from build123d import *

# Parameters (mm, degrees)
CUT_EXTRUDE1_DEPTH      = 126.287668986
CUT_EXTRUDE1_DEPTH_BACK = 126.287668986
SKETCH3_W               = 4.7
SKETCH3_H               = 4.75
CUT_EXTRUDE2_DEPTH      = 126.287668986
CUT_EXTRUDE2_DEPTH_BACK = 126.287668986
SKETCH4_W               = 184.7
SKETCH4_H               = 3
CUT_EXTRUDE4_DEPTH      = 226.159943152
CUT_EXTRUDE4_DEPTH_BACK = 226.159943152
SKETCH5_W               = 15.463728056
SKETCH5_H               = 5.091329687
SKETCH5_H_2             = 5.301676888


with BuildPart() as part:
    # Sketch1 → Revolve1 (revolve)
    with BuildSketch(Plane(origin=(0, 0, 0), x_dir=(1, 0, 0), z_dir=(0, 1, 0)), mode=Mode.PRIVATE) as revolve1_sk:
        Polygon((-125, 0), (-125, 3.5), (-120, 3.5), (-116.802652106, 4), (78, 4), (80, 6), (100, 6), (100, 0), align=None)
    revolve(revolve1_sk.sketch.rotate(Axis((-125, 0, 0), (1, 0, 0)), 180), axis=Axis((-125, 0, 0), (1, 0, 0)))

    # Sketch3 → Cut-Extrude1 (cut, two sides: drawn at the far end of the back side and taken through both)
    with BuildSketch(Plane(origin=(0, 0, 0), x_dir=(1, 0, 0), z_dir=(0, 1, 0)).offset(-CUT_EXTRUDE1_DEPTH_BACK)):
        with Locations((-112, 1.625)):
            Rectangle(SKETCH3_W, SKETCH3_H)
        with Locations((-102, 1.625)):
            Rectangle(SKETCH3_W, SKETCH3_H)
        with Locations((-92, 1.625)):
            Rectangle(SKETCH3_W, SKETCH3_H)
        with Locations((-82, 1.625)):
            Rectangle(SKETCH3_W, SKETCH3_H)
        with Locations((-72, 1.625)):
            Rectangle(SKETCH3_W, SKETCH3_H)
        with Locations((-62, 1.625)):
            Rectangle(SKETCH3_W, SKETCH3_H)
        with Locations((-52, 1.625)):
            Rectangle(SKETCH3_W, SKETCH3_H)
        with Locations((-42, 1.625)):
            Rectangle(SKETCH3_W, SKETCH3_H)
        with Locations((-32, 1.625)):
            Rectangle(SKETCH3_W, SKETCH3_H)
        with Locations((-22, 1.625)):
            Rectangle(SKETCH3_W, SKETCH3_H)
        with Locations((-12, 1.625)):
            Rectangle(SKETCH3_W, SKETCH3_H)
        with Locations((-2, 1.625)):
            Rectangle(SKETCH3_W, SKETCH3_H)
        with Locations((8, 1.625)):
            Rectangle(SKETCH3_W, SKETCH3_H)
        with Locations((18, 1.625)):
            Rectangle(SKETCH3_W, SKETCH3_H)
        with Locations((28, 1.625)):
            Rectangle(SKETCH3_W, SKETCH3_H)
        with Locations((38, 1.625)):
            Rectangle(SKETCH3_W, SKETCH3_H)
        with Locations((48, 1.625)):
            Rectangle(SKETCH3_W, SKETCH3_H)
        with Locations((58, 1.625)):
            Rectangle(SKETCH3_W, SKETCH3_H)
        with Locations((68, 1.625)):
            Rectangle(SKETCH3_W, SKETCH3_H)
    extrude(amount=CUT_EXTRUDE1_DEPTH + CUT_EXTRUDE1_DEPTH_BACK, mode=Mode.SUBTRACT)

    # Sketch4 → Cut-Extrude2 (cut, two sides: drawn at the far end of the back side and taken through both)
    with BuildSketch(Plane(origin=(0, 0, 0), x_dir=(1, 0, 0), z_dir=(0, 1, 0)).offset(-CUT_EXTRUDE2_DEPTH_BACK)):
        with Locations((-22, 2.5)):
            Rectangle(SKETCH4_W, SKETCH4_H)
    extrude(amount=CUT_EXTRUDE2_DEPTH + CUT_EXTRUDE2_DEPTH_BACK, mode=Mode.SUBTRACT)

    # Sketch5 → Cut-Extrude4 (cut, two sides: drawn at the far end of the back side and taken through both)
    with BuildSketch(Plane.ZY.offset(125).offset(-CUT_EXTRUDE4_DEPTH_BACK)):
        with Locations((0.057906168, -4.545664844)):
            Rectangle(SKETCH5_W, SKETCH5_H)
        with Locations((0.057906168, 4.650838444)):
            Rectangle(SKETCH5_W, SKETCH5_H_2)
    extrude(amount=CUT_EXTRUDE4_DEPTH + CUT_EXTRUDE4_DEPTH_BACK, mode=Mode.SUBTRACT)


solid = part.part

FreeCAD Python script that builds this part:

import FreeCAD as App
import Part
import Sketcher
Q = App.Units.Quantity


def add_polygon(sketch, points):
    """Adds a closed chain of lines whose ends are joined by coincident constraints."""
    first, n = sketch.GeometryCount, len(points)
    for a, b in zip(points, points[1:] + points[:1]):
        sketch.addGeometry(Part.LineSegment(App.Vector(*a, 0), App.Vector(*b, 0)), False)
    for i in range(n):
        sketch.addConstraint(Sketcher.Constraint("Coincident", first + i, 2, first + (i + 1) % n, 1))

doc = App.newDocument("Part")
body = doc.addObject("PartDesign::Body", "Body")

# Sketch on XZ plane
sketch1 = body.newObject("Sketcher::SketchObject", "Sketch")
sketch1.AttachmentSupport = (doc.getObject("XZ_Plane"), [""])
sketch1.MapMode = "FlatFace"
add_polygon(sketch1, [(-125, -3.5), (-125, 0), (100, 0), (100, -6), (80, -6), (78, -4), (-116.802652, -4), (-120, -3.5)])  # lines 0-7
sketch1.addConstraint(Sketcher.Constraint("Vertical", 0))
sketch1.addConstraint(Sketcher.Constraint("Horizontal", 1))
sketch1.addConstraint(Sketcher.Constraint("Vertical", 2))
sketch1.addConstraint(Sketcher.Constraint("Horizontal", 3))
sketch1.addConstraint(Sketcher.Constraint("Horizontal", 5))
sketch1.addConstraint(Sketcher.Constraint("Horizontal", 7))
sketch1.addConstraint(Sketcher.Constraint("PointOnObject", 0, 2, -1))
sketch1.addConstraint(Sketcher.Constraint("DistanceX", 1, 1, 1, 2, 225.0))
sketch1.addConstraint(Sketcher.Constraint("DistanceX", 3, 2, 3, 1, 20.0))
sketch1.addConstraint(Sketcher.Constraint("DistanceX", 7, 2, 7, 1, 5.0))
sketch1.addConstraint(Sketcher.Constraint("DistanceY", 2, 2, 2, 1, 6.0))
sketch1.addConstraint(Sketcher.Constraint("Angle", 4, Q("135 deg")))
sketch1.addConstraint(Sketcher.Constraint("DistanceY", 0, 1, 0, 2, 3.5))
sketch1.addConstraint(Sketcher.Constraint("DistanceX", 0, 2, -1, 1, 125.0))
sketch1.addConstraint(Sketcher.Constraint("DistanceX", -1, 1, 4, 2, 78.0))
sketch1.addConstraint(Sketcher.Constraint("DistanceX", 5, 2, 5, 1, 194.802652))
revolution = body.newObject("PartDesign::Revolution", "Revolution")
revolution.Profile = sketch1
revolution.ReferenceAxis = (sketch1, ["H_Axis"])
revolution.Angle = 360

# Sketch on XZ plane
sketch2 = body.newObject("Sketcher::SketchObject", "Sketch001")
sketch2.AttachmentSupport = (doc.getObject("XZ_Plane"), [""])
sketch2.MapMode = "FlatFace"
add_polygon(sketch2, [(-114.35, -4), (-114.35, 0.75), (-109.65, 0.75), (-109.65, -4)])  # lines 0-3
add_polygon(sketch2, [(-104.35, -4), (-104.35, 0.75), (-99.65, 0.75), (-99.65, -4)])  # lines 4-7
add_polygon(sketch2, [(-94.35, -4), (-94.35, 0.75), (-89.65, 0.75), (-89.65, -4)])  # lines 8-11
add_polygon(sketch2, [(-84.35, -4), (-84.35, 0.75), (-79.65, 0.75), (-79.65, -4)])  # lines 12-15
add_polygon(sketch2, [(-74.35, -4), (-74.35, 0.75), (-69.65, 0.75), (-69.65, -4)])  # lines 16-19
add_polygon(sketch2, [(-64.35, -4), (-64.35, 0.75), (-59.65, 0.75), (-59.65, -4)])  # lines 20-23
add_polygon(sketch2, [(-54.35, -4), (-54.35, 0.75), (-49.65, 0.75), (-49.65, -4)])  # lines 24-27
add_polygon(sketch2, [(-44.35, -4), (-44.35, 0.75), (-39.65, 0.75), (-39.65, -4)])  # lines 28-31
add_polygon(sketch2, [(-34.35, -4), (-34.35, 0.75), (-29.65, 0.75), (-29.65, -4)])  # lines 32-35
add_polygon(sketch2, [(-24.35, -4), (-24.35, 0.75), (-19.65, 0.75), (-19.65, -4)])  # lines 36-39
add_polygon(sketch2, [(-14.35, -4), (-14.35, 0.75), (-9.65, 0.75), (-9.65, -4)])  # lines 40-43
add_polygon(sketch2, [(-4.35, -4), (-4.35, 0.75), (0.35, 0.75), (0.35, -4)])  # lines 44-47
add_polygon(sketch2, [(5.65, -4), (5.65, 0.75), (10.35, 0.75), (10.35, -4)])  # lines 48-51
add_polygon(sketch2, [(15.65, -4), (15.65, 0.75), (20.35, 0.75), (20.35, -4)])  # lines 52-55
add_polygon(sketch2, [(25.65, -4), (25.65, 0.75), (30.35, 0.75), (30.35, -4)])  # lines 56-59
add_polygon(sketch2, [(35.65, -4), (35.65, 0.75), (40.35, 0.75), (40.35, -4)])  # lines 60-63
add_polygon(sketch2, [(45.65, -4), (45.65, 0.75), (50.35, 0.75), (50.35, -4)])  # lines 64-67
add_polygon(sketch2, [(55.65, -4), (55.65, 0.75), (60.35, 0.75), (60.35, -4)])  # lines 68-71
add_polygon(sketch2, [(65.65, -4), (65.65, 0.75), (70.35, 0.75), (70.35, -4)])  # lines 72-75
sketch2.addConstraint(Sketcher.Constraint("Vertical", 0))
sketch2.addConstraint(Sketcher.Constraint("Horizontal", 1))
sketch2.addConstraint(Sketcher.Constraint("Vertical", 2))
sketch2.addConstraint(Sketcher.Constraint("Horizontal", 3))
sketch2.addConstraint(Sketcher.Constraint("Vertical", 4))
sketch2.addConstraint(Sketcher.Constraint("Horizontal", 5))
sketch2.addConstraint(Sketcher.Constraint("Vertical", 6))
sketch2.addConstraint(Sketcher.Constraint("Horizontal", 7))
sketch2.addConstraint(Sketcher.Constraint("Vertical", 8))
sketch2.addConstraint(Sketcher.Constraint("Horizontal", 9))
sketch2.addConstraint(Sketcher.Constraint("Vertical", 10))
sketch2.addConstraint(Sketcher.Constraint("Horizontal", 11))
sketch2.addConstraint(Sketcher.Constraint("Vertical", 12))
sketch2.addConstraint(Sketcher.Constraint("Horizontal", 13))
sketch2.addConstraint(Sketcher.Constraint("Vertical", 14))
sketch2.addConstraint(Sketcher.Constraint("Horizontal", 15))
sketch2.addConstraint(Sketcher.Constraint("Vertical", 16))
sketch2.addConstraint(Sketcher.Constraint("Horizontal", 17))
sketch2.addConstraint(Sketcher.Constraint("Vertical", 18))
sketch2.addConstraint(Sketcher.Constraint("Horizontal", 19))
sketch2.addConstraint(Sketcher.Constraint("Vertical", 20))
sketch2.addConstraint(Sketcher.Constraint("Horizontal", 21))
sketch2.addConstraint(Sketcher.Constraint("Vertical", 22))
sketch2.addConstraint(Sketcher.Constraint("Horizontal", 23))
sketch2.addConstraint(Sketcher.Constraint("Vertical", 24))
sketch2.addConstraint(Sketcher.Constraint("Horizontal", 25))
sketch2.addConstraint(Sketcher.Constraint("Vertical", 26))
sketch2.addConstraint(Sketcher.Constraint("Horizontal", 27))
sketch2.addConstraint(Sketcher.Constraint("Vertical", 28))
sketch2.addConstraint(Sketcher.Constraint("Horizontal", 29))
sketch2.addConstraint(Sketcher.Constraint("Vertical", 30))
sketch2.addConstraint(Sketcher.Constraint("Horizontal", 31))
sketch2.addConstraint(Sketcher.Constraint("Vertical", 32))
sketch2.addConstraint(Sketcher.Constraint("Horizontal", 33))
sketch2.addConstraint(Sketcher.Constraint("Vertical", 34))
sketch2.addConstraint(Sketcher.Constraint("Horizontal", 35))
sketch2.addConstraint(Sketcher.Constraint("Vertical", 36))
sketch2.addConstraint(Sketcher.Constraint("Horizontal", 37))
sketch2.addConstraint(Sketcher.Constraint("Vertical", 38))
sketch2.addConstraint(Sketcher.Constraint("Horizontal", 39))
sketch2.addConstraint(Sketcher.Constraint("Vertical", 40))
sketch2.addConstraint(Sketcher.Constraint("Horizontal", 41))
sketch2.addConstraint(Sketcher.Constraint("Vertical", 42))
sketch2.addConstraint(Sketcher.Constraint("Horizontal", 43))
sketch2.addConstraint(Sketcher.Constraint("Vertical", 44))
sketch2.addConstraint(Sketcher.Constraint("Horizontal", 45))
sketch2.addConstraint(Sketcher.Constraint("Vertical", 46))
sketch2.addConstraint(Sketcher.Constraint("Horizontal", 47))
sketch2.addConstraint(Sketcher.Constraint("Vertical", 48))
sketch2.addConstraint(Sketcher.Constraint("Horizontal", 49))
sketch2.addConstraint(Sketcher.Constraint("Vertical", 50))
sketch2.addConstraint(Sketcher.Constraint("Horizontal", 51))
sketch2.addConstraint(Sketcher.Constraint("Vertical", 52))
sketch2.addConstraint(Sketcher.Constraint("Horizontal", 53))
sketch2.addConstraint(Sketcher.Constraint("Vertical", 54))
sketch2.addConstraint(Sketcher.Constraint("Horizontal", 55))
sketch2.addConstraint(Sketcher.Constraint("Vertical", 56))
sketch2.addConstraint(Sketcher.Constraint("Horizontal", 57))
sketch2.addConstraint(Sketcher.Constraint("Vertical", 58))
sketch2.addConstraint(Sketcher.Constraint("Horizontal", 59))
sketch2.addConstraint(Sketcher.Constraint("Vertical", 60))
sketch2.addConstraint(Sketcher.Constraint("Horizontal", 61))
sketch2.addConstraint(Sketcher.Constraint("Vertical", 62))
sketch2.addConstraint(Sketcher.Constraint("Horizontal", 63))
sketch2.addConstraint(Sketcher.Constraint("Vertical", 64))
sketch2.addConstraint(Sketcher.Constraint("Horizontal", 65))
sketch2.addConstraint(Sketcher.Constraint("Vertical", 66))
sketch2.addConstraint(Sketcher.Constraint("Horizontal", 67))
sketch2.addConstraint(Sketcher.Constraint("Vertical", 68))
sketch2.addConstraint(Sketcher.Constraint("Horizontal", 69))
sketch2.addConstraint(Sketcher.Constraint("Vertical", 70))
sketch2.addConstraint(Sketcher.Constraint("Horizontal", 71))
sketch2.addConstraint(Sketcher.Constraint("Vertical", 72))
sketch2.addConstraint(Sketcher.Constraint("Horizontal", 73))
sketch2.addConstraint(Sketcher.Constraint("Vertical", 74))
sketch2.addConstraint(Sketcher.Constraint("Horizontal", 75))
sketch2.addConstraint(Sketcher.Constraint("Horizontal", 1, 2, 4, 2))
sketch2.addConstraint(Sketcher.Constraint("Horizontal", 3, 2, 6, 2))
sketch2.addConstraint(Sketcher.Constraint("Horizontal", 5, 2, 8, 2))
sketch2.addConstraint(Sketcher.Constraint("Horizontal", 7, 2, 10, 2))
sketch2.addConstraint(Sketcher.Constraint("Horizontal", 9, 2, 12, 2))
sketch2.addConstraint(Sketcher.Constraint("Horizontal", 11, 2, 14, 2))
sketch2.addConstraint(Sketcher.Constraint("Horizontal", 13, 2, 16, 2))
sketch2.addConstraint(Sketcher.Constraint("Horizontal", 15, 2, 18, 2))
sketch2.addConstraint(Sketcher.Constraint("Horizontal", 17, 2, 20, 2))
sketch2.addConstraint(Sketcher.Constraint("Horizontal", 19, 2, 22, 2))
sketch2.addConstraint(Sketcher.Constraint("Horizontal", 21, 2, 24, 2))
sketch2.addConstraint(Sketcher.Constraint("Horizontal", 23, 2, 26, 2))
sketch2.addConstraint(Sketcher.Constraint("Horizontal", 25, 2, 28, 2))
sketch2.addConstraint(Sketcher.Constraint("Horizontal", 27, 2, 30, 2))
sketch2.addConstraint(Sketcher.Constraint("Horizontal", 29, 2, 32, 2))
sketch2.addConstraint(Sketcher.Constraint("Horizontal", 31, 2, 34, 2))
sketch2.addConstraint(Sketcher.Constraint("Horizontal", 33, 2, 36, 2))
sketch2.addConstraint(Sketcher.Constraint("Horizontal", 35, 2, 38, 2))
sketch2.addConstraint(Sketcher.Constraint("Horizontal", 37, 2, 40, 2))
sketch2.addConstraint(Sketcher.Constraint("Horizontal", 39, 2, 42, 2))
sketch2.addConstraint(Sketcher.Constraint("Horizontal", 41, 2, 44, 2))
sketch2.addConstraint(Sketcher.Constraint("Horizontal", 43, 2, 46, 2))
sketch2.addConstraint(Sketcher.Constraint("Horizontal", 45, 2, 48, 2))
sketch2.addConstraint(Sketcher.Constraint("Horizontal", 47, 2, 50, 2))
sketch2.addConstraint(Sketcher.Constraint("Horizontal", 49, 2, 52, 2))
sketch2.addConstraint(Sketcher.Constraint("Horizontal", 51, 2, 54, 2))
sketch2.addConstraint(Sketcher.Constraint("Horizontal", 53, 2, 56, 2))
sketch2.addConstraint(Sketcher.Constraint("Horizontal", 55, 2, 58, 2))
sketch2.addConstraint(Sketcher.Constraint("Horizontal", 57, 2, 60, 2))
sketch2.addConstraint(Sketcher.Constraint("Horizontal", 59, 2, 62, 2))
sketch2.addConstraint(Sketcher.Constraint("Horizontal", 61, 2, 64, 2))
sketch2.addConstraint(Sketcher.Constraint("Horizontal", 63, 2, 66, 2))
sketch2.addConstraint(Sketcher.Constraint("Horizontal", 65, 2, 68, 2))
sketch2.addConstraint(Sketcher.Constraint("Horizontal", 67, 2, 70, 2))
sketch2.addConstraint(Sketcher.Constraint("Horizontal", 69, 2, 72, 2))
sketch2.addConstraint(Sketcher.Constraint("Horizontal", 71, 2, 74, 2))
sketch2.addConstraint(Sketcher.Constraint("Equal", 3, 5))
sketch2.addConstraint(Sketcher.Constraint("Equal", 7, 9))
sketch2.addConstraint(Sketcher.Constraint("Equal", 11, 13))
sketch2.addConstraint(Sketcher.Constraint("Equal", 15, 17))
sketch2.addConstraint(Sketcher.Constraint("Equal", 19, 21))
sketch2.addConstraint(Sketcher.Constraint("Equal", 23, 25))
sketch2.addConstraint(Sketcher.Constraint("Equal", 27, 29))
sketch2.addConstraint(Sketcher.Constraint("Equal", 31, 33))
sketch2.addConstraint(Sketcher.Constraint("Equal", 35, 37))
sketch2.addConstraint(Sketcher.Constraint("Equal", 39, 41))
sketch2.addConstraint(Sketcher.Constraint("Equal", 43, 45))
sketch2.addConstraint(Sketcher.Constraint("Equal", 47, 49))
sketch2.addConstraint(Sketcher.Constraint("Equal", 51, 53))
sketch2.addConstraint(Sketcher.Constraint("Equal", 55, 57))
sketch2.addConstraint(Sketcher.Constraint("Equal", 59, 61))
sketch2.addConstraint(Sketcher.Constraint("Equal", 63, 65))
sketch2.addConstraint(Sketcher.Constraint("Equal", 67, 69))
sketch2.addConstraint(Sketcher.Constraint("Equal", 71, 73))
sketch2.addConstraint(Sketcher.Constraint("DistanceX", 1, 1, 1, 2, 4.7))
sketch2.addConstraint(Sketcher.Constraint("DistanceY", 2, 2, -1, 1, 4.0))
sketch2.addConstraint(Sketcher.Constraint("DistanceY", 0, 1, 0, 2, 4.75))
sketch2.addConstraint(Sketcher.Constraint("DistanceX", 0, 2, -1, 1, 114.35))
sketch2.addConstraint(Sketcher.Constraint("DistanceX", 4, 2, -1, 1, 104.35))
sketch2.addConstraint(Sketcher.Constraint("DistanceX", 8, 2, -1, 1, 94.35))
sketch2.addConstraint(Sketcher.Constraint("DistanceX", 12, 2, -1, 1, 84.35))
sketch2.addConstraint(Sketcher.Constraint("DistanceX", 16, 2, -1, 1, 74.35))
sketch2.addConstraint(Sketcher.Constraint("DistanceX", 20, 2, -1, 1, 64.35))
sketch2.addConstraint(Sketcher.Constraint("DistanceX", 24, 2, -1, 1, 54.35))
sketch2.addConstraint(Sketcher.Constraint("DistanceX", 28, 2, -1, 1, 44.35))
sketch2.addConstraint(Sketcher.Constraint("DistanceX", 32, 2, -1, 1, 34.35))
sketch2.addConstraint(Sketcher.Constraint("DistanceX", 36, 2, -1, 1, 24.35))
sketch2.addConstraint(Sketcher.Constraint("DistanceX", 40, 2, -1, 1, 14.35))
sketch2.addConstraint(Sketcher.Constraint("DistanceX", 44, 2, -1, 1, 4.35))
sketch2.addConstraint(Sketcher.Constraint("DistanceX", -1, 1, 48, 2, 5.65))
sketch2.addConstraint(Sketcher.Constraint("DistanceX", -1, 1, 52, 2, 15.65))
sketch2.addConstraint(Sketcher.Constraint("DistanceX", -1, 1, 56, 2, 25.65))
sketch2.addConstraint(Sketcher.Constraint("DistanceX", -1, 1, 60, 2, 35.65))
sketch2.addConstraint(Sketcher.Constraint("DistanceX", -1, 1, 64, 2, 45.65))
sketch2.addConstraint(Sketcher.Constraint("DistanceX", -1, 1, 68, 2, 55.65))
sketch2.addConstraint(Sketcher.Constraint("DistanceX", -1, 1, 72, 2, 65.65))
pocket1 = body.newObject("PartDesign::Pocket", "Pocket")
pocket1.Profile = sketch2
pocket1.Type = "ThroughAll"
pocket1.Midplane = True

# Sketch on XZ plane
sketch3 = body.newObject("Sketcher::SketchObject", "Sketch002")
sketch3.AttachmentSupport = (doc.getObject("XZ_Plane"), [""])
sketch3.MapMode = "FlatFace"
add_polygon(sketch3, [(-114.35, -4), (-114.35, -1), (70.35, -1), (70.35, -4)])  # lines 0-3
sketch3.addConstraint(Sketcher.Constraint("Vertical", 0))
sketch3.addConstraint(Sketcher.Constraint("Horizontal", 1))
sketch3.addConstraint(Sketcher.Constraint("Vertical", 2))
sketch3.addConstraint(Sketcher.Constraint("Horizontal", 3))
sketch3.addConstraint(Sketcher.Constraint("DistanceY", 0, 1, 0, 2, 3.0))
sketch3.addConstraint(Sketcher.Constraint("DistanceX", 1, 1, 1, 2, 184.7))
sketch3.addConstraint(Sketcher.Constraint("DistanceY", 0, 2, -1, 1, 1.0))
sketch3.addConstraint(Sketcher.Constraint("DistanceX", 0, 2, -1, 1, 114.35))
pocket2 = body.newObject("PartDesign::Pocket", "Pocket001")
pocket2.Profile = sketch3
pocket2.Type = "ThroughAll"
pocket2.Midplane = True

# Sketch on YZ plane
sketch4 = body.newObject("Sketcher::SketchObject", "Sketch003")
sketch4.AttachmentSupport = (doc.getObject("YZ_Plane"), [""])
sketch4.MapMode = "FlatFace"
sketch4.AttachmentOffset = App.Placement(App.Vector(0, 0, -125), App.Rotation())
add_polygon(sketch4, [(-2, -7.673958), (-7.09133, -7.673958), (-7.09133, 7.78977), (-2, 7.78977)])  # lines 0-3
add_polygon(sketch4, [(7.301677, -7.673958), (2, -7.673958), (2, 7.78977), (7.301677, 7.78977)])  # lines 4-7
sketch4.addConstraint(Sketcher.Constraint("Horizontal", 0))
sketch4.addConstraint(Sketcher.Constraint("Vertical", 1))
sketch4.addConstraint(Sketcher.Constraint("Horizontal", 2))
sketch4.addConstraint(Sketcher.Constraint("Vertical", 3))
sketch4.addConstraint(Sketcher.Constraint("Horizontal", 4))
sketch4.addConstraint(Sketcher.Constraint("Vertical", 5))
sketch4.addConstraint(Sketcher.Constraint("Horizontal", 6))
sketch4.addConstraint(Sketcher.Constraint("Vertical", 7))
sketch4.addConstraint(Sketcher.Constraint("Symmetric", 3, 2, 4, 2, -2))
sketch4.addConstraint(Sketcher.Constraint("Horizontal", 2, 2, 5, 2))
sketch4.addConstraint(Sketcher.Constraint("DistanceX", 2, 2, -1, 1, 2.0))
sketch4.addConstraint(Sketcher.Constraint("DistanceX", 0, 2, 0, 1, 5.09133))
sketch4.addConstraint(Sketcher.Constraint("DistanceY", 1, 1, 1, 2, 15.463728))
sketch4.addConstraint(Sketcher.Constraint("DistanceX", 4, 2, 4, 1, 5.301677))
sketch4.addConstraint(Sketcher.Constraint("DistanceY", -1, 1, 1, 2, 7.78977))
pocket3 = body.newObject("PartDesign::Pocket", "Pocket002")
pocket3.Profile = sketch4
pocket3.Type = "ThroughAll"
pocket3.Midplane = True

doc.recompute()
